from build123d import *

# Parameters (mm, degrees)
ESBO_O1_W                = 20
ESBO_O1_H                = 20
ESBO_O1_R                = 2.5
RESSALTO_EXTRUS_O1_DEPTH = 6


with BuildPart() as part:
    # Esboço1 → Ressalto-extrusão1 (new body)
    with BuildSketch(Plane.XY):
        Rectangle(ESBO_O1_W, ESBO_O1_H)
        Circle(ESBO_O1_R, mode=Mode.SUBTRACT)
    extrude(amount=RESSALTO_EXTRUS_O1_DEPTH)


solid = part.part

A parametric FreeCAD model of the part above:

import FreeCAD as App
import Part
import Sketcher

V = App.Vector


def add_polygon(sketch, points):
    """Adds a closed chain of lines whose ends are joined by coincident constraints."""
    first, n = sketch.GeometryCount, len(points)
    for a, b in zip(points, points[1:] + points[:1]):
        sketch.addGeometry(Part.LineSegment(App.Vector(*a, 0), App.Vector(*b, 0)), False)
    for i in range(n):
        sketch.addConstraint(Sketcher.Constraint("Coincident", first + i, 2, first + (i + 1) % n, 1))

doc = App.newDocument("Part")
params = doc.addObject("Spreadsheet::Sheet", "Params")
for row, (alias, value) in enumerate([
    ("sketch1_diameter", "5 mm"),
    ("sketch1_width", "20 mm"),
    ("pad1_length", "6 mm"),
], start=1):
    params.set(f"A{row}", alias)
    params.set(f"B{row}", "=" + value)
    params.setAlias(f"B{row}", alias)

body = doc.addObject("PartDesign::Body", "Body")

# Sketch on XY plane
sketch1 = doc.addObject("Sketcher::SketchObject", "Sketch")
body.addObject(sketch1)
sketch1.AttachmentSupport = (doc.XY_Plane, [""])
sketch1.MapMode = "FlatFace"
add_polygon(sketch1, [(-10, 10), (-10, -10), (10, -10), (10, 10)])  # lines 0-3
sketch1.addGeometry(Part.Circle(V(0, 0, 0), V(0, 0, 1), 2.5), False)  # 4
sketch1.addConstraint(Sketcher.Constraint("Vertical", 0))
sketch1.addConstraint(Sketcher.Constraint("Horizontal", 1))
sketch1.addConstraint(Sketcher.Constraint("Vertical", 2))
sketch1.addConstraint(Sketcher.Constraint("Horizontal", 3))
sketch1.addConstraint(Sketcher.Constraint("Coincident", 4, 3, -1, 1))
sketch1.addConstraint(Sketcher.Constraint("Symmetric", 0, 2, 2, 2, -1, 1))
sketch1.addConstraint(Sketcher.Constraint("Equal", 3, 0))
sketch1.addConstraint(Sketcher.Constraint("Diameter", 4, 5.0))
sketch1.addConstraint(Sketcher.Constraint("DistanceX", 1, 1, 1, 2, 20.0))
sketch1.setExpression("Constraints[11]", "Params.sketch1_diameter")
sketch1.setExpression("Constraints[12]", "Params.sketch1_width")
pad1 = doc.addObject("PartDesign::Pad", "Pad")
body.addObject(pad1)
pad1.Profile = sketch1
pad1.setExpression("Length", "Params.pad1_length")

doc.recompute()
